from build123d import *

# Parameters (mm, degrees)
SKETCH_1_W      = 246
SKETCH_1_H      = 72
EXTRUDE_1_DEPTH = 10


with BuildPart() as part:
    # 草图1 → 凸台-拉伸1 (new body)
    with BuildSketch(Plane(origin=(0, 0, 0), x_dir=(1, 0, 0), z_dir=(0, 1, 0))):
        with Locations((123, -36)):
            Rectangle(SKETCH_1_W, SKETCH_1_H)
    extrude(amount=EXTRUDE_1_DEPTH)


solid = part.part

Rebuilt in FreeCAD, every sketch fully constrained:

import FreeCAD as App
import Part
import Sketcher

V = App.Vector

doc = App.newDocument("Part")
body = doc.addObject("PartDesign::Body", "Body")

# Sketch on XZ plane
sketch1 = body.newObject("Sketcher::SketchObject", "Sketch")
sketch1.AttachmentSupport = (doc.getObject("XZ_Plane"), [""])
sketch1.MapMode = "FlatFace"
sketch1.addGeometry([
    Part.LineSegment(V(0, 0, 0), V(0, 72, 0)),
    Part.LineSegment(V(0, 72, 0), V(246, 72, 0)),
    Part.LineSegment(V(246, 72, 0), V(246, 0, 0)),
    Part.LineSegment(V(246, 0, 0), V(0, 0, 0)),
], False)
sketch1.addConstraint([
    Sketcher.Constraint("Coincident", 0, 2, 1, 1),
    Sketcher.Constraint("Coincident", 1, 2, 2, 1),
    Sketcher.Constraint("Coincident", 2, 2, 3, 1),
    Sketcher.Constraint("Coincident", 3, 2, 0, 1),
    Sketcher.Constraint("Vertical", 0),
    Sketcher.Constraint("Horizontal", 1),
    Sketcher.Constraint("Vertical", 2),
    Sketcher.Constraint("Horizontal", 3),
    Sketcher.Constraint("Coincident", 3, 2, -1, 1),
    Sketcher.Constraint("DistanceX", 1, 1, 1, 2, 246.0),
    Sketcher.Constraint("DistanceY", 0, 1, 0, 2, 72.0),
])
pad1 = body.newObject("PartDesign::Pad", "Pad")
pad1.Profile = sketch1
pad1.Length = 10
pad1.Reversed = True

doc.recompute()
